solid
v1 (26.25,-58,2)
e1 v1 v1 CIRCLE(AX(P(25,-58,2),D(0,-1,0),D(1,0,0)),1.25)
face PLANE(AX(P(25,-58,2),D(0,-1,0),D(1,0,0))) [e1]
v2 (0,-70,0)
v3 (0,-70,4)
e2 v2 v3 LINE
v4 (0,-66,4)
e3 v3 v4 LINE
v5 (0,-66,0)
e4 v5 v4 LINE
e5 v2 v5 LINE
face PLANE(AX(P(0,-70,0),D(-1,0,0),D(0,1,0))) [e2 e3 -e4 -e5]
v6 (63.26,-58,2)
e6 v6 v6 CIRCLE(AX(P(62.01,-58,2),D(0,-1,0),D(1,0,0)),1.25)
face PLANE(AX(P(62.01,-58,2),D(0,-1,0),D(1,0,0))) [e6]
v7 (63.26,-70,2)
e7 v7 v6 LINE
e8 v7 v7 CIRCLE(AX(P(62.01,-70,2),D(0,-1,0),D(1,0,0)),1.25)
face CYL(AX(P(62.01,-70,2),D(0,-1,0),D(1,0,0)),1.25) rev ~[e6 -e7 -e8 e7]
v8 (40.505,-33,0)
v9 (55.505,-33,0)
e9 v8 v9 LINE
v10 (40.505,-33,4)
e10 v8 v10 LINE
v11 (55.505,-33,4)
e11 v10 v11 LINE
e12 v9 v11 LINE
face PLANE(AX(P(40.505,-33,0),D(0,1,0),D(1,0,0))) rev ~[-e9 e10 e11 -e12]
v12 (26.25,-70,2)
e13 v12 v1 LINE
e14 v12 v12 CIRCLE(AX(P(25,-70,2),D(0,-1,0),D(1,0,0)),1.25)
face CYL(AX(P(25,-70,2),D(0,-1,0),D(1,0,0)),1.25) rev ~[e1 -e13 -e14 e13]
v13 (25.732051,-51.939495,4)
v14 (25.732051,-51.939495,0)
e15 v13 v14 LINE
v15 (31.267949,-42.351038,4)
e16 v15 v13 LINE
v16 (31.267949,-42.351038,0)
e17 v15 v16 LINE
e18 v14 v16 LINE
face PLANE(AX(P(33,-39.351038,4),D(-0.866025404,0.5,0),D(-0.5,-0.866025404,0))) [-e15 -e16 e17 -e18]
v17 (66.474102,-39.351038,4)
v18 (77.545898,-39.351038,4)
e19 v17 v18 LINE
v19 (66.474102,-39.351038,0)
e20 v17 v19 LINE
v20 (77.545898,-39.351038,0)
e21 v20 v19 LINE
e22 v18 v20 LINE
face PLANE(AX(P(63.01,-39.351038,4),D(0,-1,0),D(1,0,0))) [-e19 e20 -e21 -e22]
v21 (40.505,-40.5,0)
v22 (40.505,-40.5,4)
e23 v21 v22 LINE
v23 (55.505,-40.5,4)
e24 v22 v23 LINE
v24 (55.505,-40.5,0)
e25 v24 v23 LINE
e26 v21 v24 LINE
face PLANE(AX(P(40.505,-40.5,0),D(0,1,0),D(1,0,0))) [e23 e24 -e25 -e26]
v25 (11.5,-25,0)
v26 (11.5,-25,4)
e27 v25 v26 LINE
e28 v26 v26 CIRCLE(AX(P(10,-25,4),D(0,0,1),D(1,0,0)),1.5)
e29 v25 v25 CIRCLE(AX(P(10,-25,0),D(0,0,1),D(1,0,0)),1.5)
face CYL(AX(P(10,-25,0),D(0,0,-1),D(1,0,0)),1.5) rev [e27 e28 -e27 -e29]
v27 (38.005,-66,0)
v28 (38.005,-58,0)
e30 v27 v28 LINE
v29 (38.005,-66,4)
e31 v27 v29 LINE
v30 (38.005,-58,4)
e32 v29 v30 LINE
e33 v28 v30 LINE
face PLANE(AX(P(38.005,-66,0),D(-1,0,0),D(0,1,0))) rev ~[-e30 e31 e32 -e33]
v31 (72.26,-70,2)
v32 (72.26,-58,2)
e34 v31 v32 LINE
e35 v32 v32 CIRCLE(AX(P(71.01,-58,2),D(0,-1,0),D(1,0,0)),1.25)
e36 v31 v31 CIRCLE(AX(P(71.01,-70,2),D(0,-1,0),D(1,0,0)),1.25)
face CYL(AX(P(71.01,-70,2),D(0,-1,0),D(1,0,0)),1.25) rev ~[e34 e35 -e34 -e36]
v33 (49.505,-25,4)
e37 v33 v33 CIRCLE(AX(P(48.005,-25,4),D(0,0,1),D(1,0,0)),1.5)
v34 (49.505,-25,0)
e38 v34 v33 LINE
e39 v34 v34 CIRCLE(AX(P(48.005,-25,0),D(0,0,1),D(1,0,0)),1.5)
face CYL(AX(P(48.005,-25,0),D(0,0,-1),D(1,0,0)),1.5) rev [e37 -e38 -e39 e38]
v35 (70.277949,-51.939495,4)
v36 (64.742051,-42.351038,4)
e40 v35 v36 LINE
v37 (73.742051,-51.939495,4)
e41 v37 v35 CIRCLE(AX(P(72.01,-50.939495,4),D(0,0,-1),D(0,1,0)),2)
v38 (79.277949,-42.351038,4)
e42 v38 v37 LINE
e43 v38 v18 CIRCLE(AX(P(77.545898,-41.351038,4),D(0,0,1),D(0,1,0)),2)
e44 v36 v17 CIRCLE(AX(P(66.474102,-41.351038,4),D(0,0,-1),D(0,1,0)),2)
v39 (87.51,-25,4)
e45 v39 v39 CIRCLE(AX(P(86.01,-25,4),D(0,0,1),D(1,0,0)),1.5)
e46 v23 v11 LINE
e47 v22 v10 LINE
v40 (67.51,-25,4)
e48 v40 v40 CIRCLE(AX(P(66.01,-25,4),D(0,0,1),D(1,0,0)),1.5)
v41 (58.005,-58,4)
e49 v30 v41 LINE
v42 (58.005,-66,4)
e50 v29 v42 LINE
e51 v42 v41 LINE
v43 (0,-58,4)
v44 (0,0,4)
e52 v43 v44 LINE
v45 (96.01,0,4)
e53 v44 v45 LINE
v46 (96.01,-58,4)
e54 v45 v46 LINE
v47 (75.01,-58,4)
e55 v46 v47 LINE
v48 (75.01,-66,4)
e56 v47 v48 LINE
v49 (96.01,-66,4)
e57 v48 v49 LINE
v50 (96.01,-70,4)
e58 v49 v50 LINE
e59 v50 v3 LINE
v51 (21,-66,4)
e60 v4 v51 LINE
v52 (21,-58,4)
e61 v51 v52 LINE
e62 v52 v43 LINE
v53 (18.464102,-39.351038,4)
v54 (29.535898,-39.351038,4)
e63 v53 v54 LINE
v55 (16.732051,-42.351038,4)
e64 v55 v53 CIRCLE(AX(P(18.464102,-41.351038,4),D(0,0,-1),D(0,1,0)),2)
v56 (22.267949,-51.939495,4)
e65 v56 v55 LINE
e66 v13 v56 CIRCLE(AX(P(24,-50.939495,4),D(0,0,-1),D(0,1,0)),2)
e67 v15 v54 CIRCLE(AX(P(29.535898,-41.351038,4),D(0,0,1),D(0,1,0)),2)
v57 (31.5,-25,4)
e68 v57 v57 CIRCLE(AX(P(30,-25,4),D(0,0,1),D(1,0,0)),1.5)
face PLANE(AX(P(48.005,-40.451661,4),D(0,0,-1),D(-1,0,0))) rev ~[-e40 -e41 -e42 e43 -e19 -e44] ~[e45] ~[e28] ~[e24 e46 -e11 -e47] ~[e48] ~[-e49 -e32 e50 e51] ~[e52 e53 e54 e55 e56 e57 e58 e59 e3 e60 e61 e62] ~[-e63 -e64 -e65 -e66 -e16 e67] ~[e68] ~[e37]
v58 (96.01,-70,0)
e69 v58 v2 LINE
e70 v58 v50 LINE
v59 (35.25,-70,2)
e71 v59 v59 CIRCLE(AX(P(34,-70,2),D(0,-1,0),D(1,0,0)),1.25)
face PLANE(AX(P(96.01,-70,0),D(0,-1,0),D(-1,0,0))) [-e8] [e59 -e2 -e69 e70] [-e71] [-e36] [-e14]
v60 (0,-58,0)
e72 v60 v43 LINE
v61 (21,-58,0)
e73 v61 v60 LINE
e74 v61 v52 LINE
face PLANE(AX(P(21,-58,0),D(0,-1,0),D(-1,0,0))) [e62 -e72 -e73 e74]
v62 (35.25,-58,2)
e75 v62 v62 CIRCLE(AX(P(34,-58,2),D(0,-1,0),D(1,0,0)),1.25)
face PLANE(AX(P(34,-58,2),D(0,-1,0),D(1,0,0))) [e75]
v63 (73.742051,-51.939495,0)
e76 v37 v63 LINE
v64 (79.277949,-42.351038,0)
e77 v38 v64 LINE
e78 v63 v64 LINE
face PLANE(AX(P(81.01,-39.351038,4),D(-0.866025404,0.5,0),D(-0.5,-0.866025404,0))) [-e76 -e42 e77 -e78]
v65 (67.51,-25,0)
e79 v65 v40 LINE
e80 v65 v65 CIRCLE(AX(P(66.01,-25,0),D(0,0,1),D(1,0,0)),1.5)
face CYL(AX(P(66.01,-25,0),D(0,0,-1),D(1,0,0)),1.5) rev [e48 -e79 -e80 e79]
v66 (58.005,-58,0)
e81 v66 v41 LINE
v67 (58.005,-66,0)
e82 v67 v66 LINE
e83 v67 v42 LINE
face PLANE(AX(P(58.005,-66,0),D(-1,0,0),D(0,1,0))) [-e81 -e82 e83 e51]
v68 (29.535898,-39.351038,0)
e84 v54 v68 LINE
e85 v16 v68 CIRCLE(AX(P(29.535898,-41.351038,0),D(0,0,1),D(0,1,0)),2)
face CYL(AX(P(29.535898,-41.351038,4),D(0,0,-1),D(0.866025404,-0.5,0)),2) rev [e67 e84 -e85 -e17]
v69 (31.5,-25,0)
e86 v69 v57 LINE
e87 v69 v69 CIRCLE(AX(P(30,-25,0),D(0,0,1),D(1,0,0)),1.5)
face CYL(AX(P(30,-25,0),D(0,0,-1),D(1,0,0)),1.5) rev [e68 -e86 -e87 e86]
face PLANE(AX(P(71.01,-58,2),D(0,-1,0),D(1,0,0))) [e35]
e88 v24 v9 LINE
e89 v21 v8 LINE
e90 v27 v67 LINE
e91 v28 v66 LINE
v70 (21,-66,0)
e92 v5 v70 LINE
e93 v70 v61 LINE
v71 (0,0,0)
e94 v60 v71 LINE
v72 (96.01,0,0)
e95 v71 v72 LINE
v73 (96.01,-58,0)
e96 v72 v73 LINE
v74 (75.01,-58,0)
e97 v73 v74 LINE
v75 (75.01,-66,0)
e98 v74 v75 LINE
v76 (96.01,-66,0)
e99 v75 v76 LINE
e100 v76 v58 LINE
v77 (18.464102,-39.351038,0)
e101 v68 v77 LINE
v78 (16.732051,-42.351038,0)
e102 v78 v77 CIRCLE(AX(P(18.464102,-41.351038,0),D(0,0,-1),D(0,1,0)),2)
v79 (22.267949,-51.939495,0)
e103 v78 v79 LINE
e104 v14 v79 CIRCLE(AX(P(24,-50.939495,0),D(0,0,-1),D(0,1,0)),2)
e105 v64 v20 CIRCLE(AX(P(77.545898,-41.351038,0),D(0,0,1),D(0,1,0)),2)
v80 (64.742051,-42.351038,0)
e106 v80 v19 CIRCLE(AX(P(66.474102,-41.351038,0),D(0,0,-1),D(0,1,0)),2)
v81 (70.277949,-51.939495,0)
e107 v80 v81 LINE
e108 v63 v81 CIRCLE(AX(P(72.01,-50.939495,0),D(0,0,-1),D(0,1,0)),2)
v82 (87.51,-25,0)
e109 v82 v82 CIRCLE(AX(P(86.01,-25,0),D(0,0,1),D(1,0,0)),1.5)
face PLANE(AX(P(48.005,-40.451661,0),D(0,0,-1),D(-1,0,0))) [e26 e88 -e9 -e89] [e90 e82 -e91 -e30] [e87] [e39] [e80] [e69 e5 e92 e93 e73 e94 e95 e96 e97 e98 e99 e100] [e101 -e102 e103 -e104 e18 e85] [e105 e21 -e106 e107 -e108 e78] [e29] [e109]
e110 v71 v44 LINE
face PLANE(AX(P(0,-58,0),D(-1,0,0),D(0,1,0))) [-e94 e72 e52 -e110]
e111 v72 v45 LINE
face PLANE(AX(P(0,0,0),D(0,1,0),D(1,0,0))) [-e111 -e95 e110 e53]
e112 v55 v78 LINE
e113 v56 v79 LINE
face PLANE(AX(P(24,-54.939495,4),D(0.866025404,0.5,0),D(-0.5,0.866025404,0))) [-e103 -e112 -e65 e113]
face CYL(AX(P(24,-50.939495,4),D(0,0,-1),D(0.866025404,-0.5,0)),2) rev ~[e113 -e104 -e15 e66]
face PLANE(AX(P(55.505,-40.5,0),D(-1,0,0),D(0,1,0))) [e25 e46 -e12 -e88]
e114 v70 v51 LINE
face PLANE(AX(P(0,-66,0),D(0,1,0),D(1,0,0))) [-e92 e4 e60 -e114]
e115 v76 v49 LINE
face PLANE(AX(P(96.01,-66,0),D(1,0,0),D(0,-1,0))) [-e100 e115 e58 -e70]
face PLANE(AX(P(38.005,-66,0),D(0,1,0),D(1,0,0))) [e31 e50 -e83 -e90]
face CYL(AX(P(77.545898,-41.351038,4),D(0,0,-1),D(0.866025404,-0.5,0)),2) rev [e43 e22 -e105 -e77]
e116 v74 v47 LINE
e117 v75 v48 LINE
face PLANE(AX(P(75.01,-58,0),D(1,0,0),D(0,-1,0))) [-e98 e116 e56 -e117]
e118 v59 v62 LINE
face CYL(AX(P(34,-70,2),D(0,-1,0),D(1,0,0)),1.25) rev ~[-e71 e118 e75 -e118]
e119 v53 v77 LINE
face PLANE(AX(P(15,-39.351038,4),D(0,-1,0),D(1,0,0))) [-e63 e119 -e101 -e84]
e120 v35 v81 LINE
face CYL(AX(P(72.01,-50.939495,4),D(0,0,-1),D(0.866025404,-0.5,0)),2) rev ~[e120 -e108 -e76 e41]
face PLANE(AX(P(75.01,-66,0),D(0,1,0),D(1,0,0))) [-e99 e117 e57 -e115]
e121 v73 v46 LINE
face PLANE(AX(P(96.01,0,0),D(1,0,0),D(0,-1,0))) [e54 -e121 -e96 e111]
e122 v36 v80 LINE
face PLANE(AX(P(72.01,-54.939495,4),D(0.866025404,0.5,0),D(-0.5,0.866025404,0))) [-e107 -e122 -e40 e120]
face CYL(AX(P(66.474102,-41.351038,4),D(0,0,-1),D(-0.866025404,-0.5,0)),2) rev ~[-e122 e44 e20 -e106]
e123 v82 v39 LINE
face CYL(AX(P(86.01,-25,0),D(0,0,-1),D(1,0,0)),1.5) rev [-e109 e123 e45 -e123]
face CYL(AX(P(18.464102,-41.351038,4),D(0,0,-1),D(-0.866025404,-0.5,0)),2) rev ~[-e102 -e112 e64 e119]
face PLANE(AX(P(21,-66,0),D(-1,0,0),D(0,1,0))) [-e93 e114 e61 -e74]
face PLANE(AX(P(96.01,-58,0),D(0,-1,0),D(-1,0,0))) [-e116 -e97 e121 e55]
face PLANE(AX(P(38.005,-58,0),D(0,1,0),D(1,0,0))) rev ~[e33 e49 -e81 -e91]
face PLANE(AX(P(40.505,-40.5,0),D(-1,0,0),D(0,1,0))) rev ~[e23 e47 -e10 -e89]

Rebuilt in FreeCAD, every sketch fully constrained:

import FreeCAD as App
import Part
import Sketcher
Q = App.Units.Quantity


def edges_at(feature, points):
    """Names of the edges that pass closest to the given points."""
    edges = feature.Shape.Edges
    near = lambda p: min(range(len(edges)), key=lambda i: edges[i].distToShape(Part.Vertex(*p))[0])
    return sorted({f"Edge{near(p) + 1}" for p in points})

doc = App.newDocument("Part")
body = doc.addObject("PartDesign::Body", "Body")

# Sketch on XY plane
sketch1 = doc.addObject("Sketcher::SketchObject", "Sketch")
body.addObject(sketch1)
sketch1.AttachmentSupport = (doc.XY_Plane, [""])
sketch1.MapMode = "FlatFace"
sketch1.addGeometry([
    Part.LineSegment(App.Vector(96.01, 0, 0), App.Vector(0, 0, 0)),  # 0
    Part.LineSegment(App.Vector(0, 0, 0), App.Vector(0, -58, 0)),  # 1
    Part.LineSegment(App.Vector(0, -58, 0), App.Vector(21, -58, 0)),  # 2
    Part.LineSegment(App.Vector(21, -58, 0), App.Vector(21, -66, 0)),  # 3
    Part.LineSegment(App.Vector(21, -66, 0), App.Vector(0, -66, 0)),  # 4
    Part.LineSegment(App.Vector(0, -66, 0), App.Vector(0, -70, 0)),  # 5
    Part.LineSegment(App.Vector(0, -70, 0), App.Vector(96.01, -70, 0)),  # 6
    Part.LineSegment(App.Vector(96.01, -70, 0), App.Vector(96.01, -66, 0)),  # 7
    Part.LineSegment(App.Vector(96.01, -66, 0), App.Vector(75.01, -66, 0)),  # 8
    Part.LineSegment(App.Vector(75.01, -66, 0), App.Vector(75.01, -58, 0)),  # 9
    Part.LineSegment(App.Vector(75.01, -58, 0), App.Vector(96.01, -58, 0)),  # 10
    Part.LineSegment(App.Vector(96.01, -58, 0), App.Vector(96.01, 0, 0)),  # 11
    Part.LineSegment(App.Vector(38.005, -66, 0), App.Vector(38.005, -58, 0)),  # 12
    Part.LineSegment(App.Vector(38.005, -58, 0), App.Vector(58.005, -58, 0)),  # 13
    Part.LineSegment(App.Vector(58.005, -58, 0), App.Vector(58.005, -66, 0)),  # 14
    Part.LineSegment(App.Vector(58.005, -66, 0), App.Vector(38.005, -66, 0)),  # 15
    Part.Circle(App.Vector(86.01, -25, 0), App.Vector(0, 0, 1), 1.5),  # 16
    Part.Circle(App.Vector(66.01, -25, 0), App.Vector(0, 0, 1), 1.5),  # 17
    Part.LineSegment(App.Vector(40.505, -40.5, 0), App.Vector(40.505, -33, 0)),  # 18
    Part.LineSegment(App.Vector(40.505, -33, 0), App.Vector(55.505, -33, 0)),  # 19
    Part.LineSegment(App.Vector(55.505, -33, 0), App.Vector(55.505, -40.5, 0)),  # 20
    Part.LineSegment(App.Vector(55.505, -40.5, 0), App.Vector(40.505, -40.5, 0)),  # 21
    Part.Circle(App.Vector(48.005, -25, 0), App.Vector(0, 0, 1), 1.5),  # 22
    Part.Circle(App.Vector(30, -25, 0), App.Vector(0, 0, 1), 1.5),  # 23
    Part.Circle(App.Vector(10, -25, 0), App.Vector(0, 0, 1), 1.5),  # 24
], False)
sketch1.addConstraint([
    Sketcher.Constraint("Coincident", 0, 2, 1, 1),
    Sketcher.Constraint("Coincident", 1, 2, 2, 1),
    Sketcher.Constraint("Coincident", 2, 2, 3, 1),
    Sketcher.Constraint("Coincident", 3, 2, 4, 1),
    Sketcher.Constraint("Coincident", 4, 2, 5, 1),
    Sketcher.Constraint("Coincident", 5, 2, 6, 1),
    Sketcher.Constraint("Coincident", 6, 2, 7, 1),
    Sketcher.Constraint("Coincident", 7, 2, 8, 1),
    Sketcher.Constraint("Coincident", 8, 2, 9, 1),
    Sketcher.Constraint("Coincident", 9, 2, 10, 1),
    Sketcher.Constraint("Coincident", 10, 2, 11, 1),
    Sketcher.Constraint("Coincident", 11, 2, 0, 1),
    Sketcher.Constraint("Coincident", 12, 2, 13, 1),
    Sketcher.Constraint("Coincident", 13, 2, 14, 1),
    Sketcher.Constraint("Coincident", 14, 2, 15, 1),
    Sketcher.Constraint("Coincident", 15, 2, 12, 1),
    Sketcher.Constraint("Coincident", 18, 2, 19, 1),
    Sketcher.Constraint("Coincident", 19, 2, 20, 1),
    Sketcher.Constraint("Coincident", 20, 2, 21, 1),
    Sketcher.Constraint("Coincident", 21, 2, 18, 1),
    Sketcher.Constraint("Horizontal", 0),
    Sketcher.Constraint("Vertical", 1),
    Sketcher.Constraint("Horizontal", 2),
    Sketcher.Constraint("Vertical", 3),
    Sketcher.Constraint("Horizontal", 4),
    Sketcher.Constraint("Vertical", 5),
    Sketcher.Constraint("Horizontal", 6),
    Sketcher.Constraint("Vertical", 7),
    Sketcher.Constraint("Horizontal", 8),
    Sketcher.Constraint("Vertical", 9),
    Sketcher.Constraint("Horizontal", 10),
    Sketcher.Constraint("Vertical", 11),
    Sketcher.Constraint("Vertical", 12),
    Sketcher.Constraint("Horizontal", 13),
    Sketcher.Constraint("Vertical", 14),
    Sketcher.Constraint("Horizontal", 15),
    Sketcher.Constraint("Vertical", 18),
    Sketcher.Constraint("Horizontal", 19),
    Sketcher.Constraint("Vertical", 20),
    Sketcher.Constraint("Horizontal", 21),
    Sketcher.Constraint("Coincident", 0, 2, -1, 1),
    Sketcher.Constraint("Equal", 16, 17),
    Sketcher.Constraint("Equal", 17, 22),
    Sketcher.Constraint("Equal", 22, 23),
    Sketcher.Constraint("Equal", 23, 24),
    Sketcher.Constraint("PointOnObject", 4, 2, -2),
    Sketcher.Constraint("Horizontal", 16, 3, 17, 3),
    Sketcher.Constraint("Horizontal", 17, 3, 22, 3),
    Sketcher.Constraint("Horizontal", 22, 3, 23, 3),
    Sketcher.Constraint("Horizontal", 23, 3, 24, 3),
    Sketcher.Constraint("Horizontal", 4, 2, 7, 2),
    Sketcher.Constraint("Horizontal", 2, 2, 9, 2),
    Sketcher.Constraint("Horizontal", 10, 2, 12, 2),
    Sketcher.Constraint("Horizontal", 8, 2, 14, 2),
    Sketcher.Constraint("Vertical", 7, 2, 10, 2),
    Sketcher.Constraint("Equal", 4, 8),
    Sketcher.Constraint("Diameter", 16, 3.0),
    Sketcher.Constraint("DistanceX", 2, 1, 2, 2, 21.0),
    Sketcher.Constraint("DistanceX", 13, 1, 13, 2, 20.0),
    Sketcher.Constraint("DistanceX", 19, 1, 19, 2, 15.0),
    Sketcher.Constraint("DistanceY", 1, 2, 1, 1, 58.0),
    Sketcher.Constraint("DistanceY", 3, 2, 3, 1, 8.0),
    Sketcher.Constraint("DistanceY", 5, 2, 5, 1, 4.0),
    Sketcher.Constraint("DistanceY", 18, 1, 18, 2, 7.5),
    Sketcher.Constraint("DistanceY", 16, 3, -1, 1, 25.0),
    Sketcher.Constraint("DistanceX", -1, 1, 23, 3, 30.0),
    Sketcher.Constraint("DistanceX", -1, 1, 24, 3, 10.0),
    Sketcher.Constraint("DistanceY", 18, 2, -1, 1, 33.0),
    Sketcher.Constraint("DistanceX", 17, 3, 16, 3, 20.0),
    Sketcher.Constraint("DistanceX", 16, 3, 6, 2, 10.0),
    Sketcher.Constraint("DistanceX", 12, 2, 22, 3, 10.0),
    Sketcher.Constraint("DistanceX", 0, 2, 0, 1, 96.01),
    Sketcher.Constraint("DistanceX", 18, 2, 22, 3, 7.5),
    Sketcher.Constraint("DistanceX", -1, 1, 22, 3, 48.005),
])
pad1 = doc.addObject("PartDesign::Pad", "Pad")
body.addObject(pad1)
pad1.Profile = sketch1
pad1.Length = 4

# Sketch on XY plane
sketch2 = doc.addObject("Sketcher::SketchObject", "Sketch001")
body.addObject(sketch2)
sketch2.AttachmentSupport = (doc.XY_Plane, [""])
sketch2.MapMode = "FlatFace"
sketch2.AttachmentOffset = App.Placement(App.Vector(0, 0, 4), App.Rotation())
sketch2.addGeometry([
    Part.LineSegment(App.Vector(81.01, -39.351038, 0), App.Vector(63.01, -39.351038, 0)),  # 0
    Part.LineSegment(App.Vector(63.01, -39.351038, 0), App.Vector(72.01, -54.939495, 0)),  # 1
    Part.LineSegment(App.Vector(72.01, -54.939495, 0), App.Vector(81.01, -39.351038, 0)),  # 2
    Part.LineSegment(App.Vector(33, -39.351038, 0), App.Vector(15, -39.351038, 0)),  # 3
    Part.LineSegment(App.Vector(15, -39.351038, 0), App.Vector(24, -54.939495, 0)),  # 4
    Part.LineSegment(App.Vector(24, -54.939495, 0), App.Vector(33, -39.351038, 0)),  # 5
], False)
sketch2.addConstraint([
    Sketcher.Constraint("Coincident", 0, 2, 1, 1),
    Sketcher.Constraint("Coincident", 1, 2, 2, 1),
    Sketcher.Constraint("Coincident", 2, 2, 0, 1),
    Sketcher.Constraint("Coincident", 3, 2, 4, 1),
    Sketcher.Constraint("Coincident", 4, 2, 5, 1),
    Sketcher.Constraint("Coincident", 5, 2, 3, 1),
    Sketcher.Constraint("Horizontal", 0),
    Sketcher.Constraint("Horizontal", 3),
    Sketcher.Constraint("Parallel", 1, 4),
    Sketcher.Constraint("Parallel", 2, 5),
    Sketcher.Constraint("Horizontal", 2, 2, 3, 2),
    Sketcher.Constraint("Horizontal", 1, 2, 4, 2),
    Sketcher.Constraint("Equal", 1, 2),
    Sketcher.Constraint("DistanceX", 0, 2, 0, 1, 18.0),
    Sketcher.Constraint("Angle", 1, Q("-60 deg")),
    Sketcher.Constraint("DistanceX", -1, 1, 3, 2, 15.0),
    Sketcher.Constraint("DistanceX", -1, 1, 0, 2, 63.01),
    Sketcher.Constraint("DistanceY", 0, 2, -1, 1, 39.351038),
])
pocket1 = doc.addObject("PartDesign::Pocket", "Pocket")
body.addObject(pocket1)
pocket1.Profile = sketch2
pocket1.Length = 10
doc.recompute()

fillet = doc.addObject("PartDesign::Fillet", "Fillet")
body.addObject(fillet)
fillet.Base = (pocket1, edges_at(pocket1, [
    (72.01, -54.939, 2),
    (63.01, -39.351, 2),
    (81.01, -39.351, 2),
    (24, -54.939, 2),
    (15, -39.351, 2),
    (33, -39.351, 2),
]))
fillet.Radius = 2

# Sketch on XZ plane
sketch3 = doc.addObject("Sketcher::SketchObject", "Sketch002")
body.addObject(sketch3)
sketch3.AttachmentSupport = (doc.XZ_Plane, [""])
sketch3.MapMode = "FlatFace"
sketch3.AttachmentOffset = App.Placement(App.Vector(0, 0, 70), App.Rotation())
sketch3.addGeometry([
    Part.Circle(App.Vector(25, 2, 0), App.Vector(0, 0, 1), 1.25),
    Part.Circle(App.Vector(34, 2, 0), App.Vector(0, 0, 1), 1.25),
    Part.Circle(App.Vector(62.01, 2, 0), App.Vector(0, 0, 1), 1.25),
    Part.Circle(App.Vector(71.01, 2, 0), App.Vector(0, 0, 1), 1.25),
], False)
sketch3.addConstraint([
    Sketcher.Constraint("Equal", 0, 1),
    Sketcher.Constraint("Equal", 1, 2),
    Sketcher.Constraint("Equal", 2, 3),
    Sketcher.Constraint("Horizontal", 0, 3, 1, 3),
    Sketcher.Constraint("Horizontal", 1, 3, 2, 3),
    Sketcher.Constraint("Horizontal", 2, 3, 3, 3),
    Sketcher.Constraint("Diameter", 0, 2.5),
    Sketcher.Constraint("DistanceX", -1, 1, 0, 3, 25.0),
    Sketcher.Constraint("DistanceY", -1, 1, 0, 3, 2.0),
    Sketcher.Constraint("DistanceX", -1, 1, 1, 3, 34.0),
    Sketcher.Constraint("DistanceX", 2, 3, 3, 3, 9.0),
    Sketcher.Constraint("DistanceX", -1, 1, 2, 3, 62.01),
])
pocket2 = doc.addObject("PartDesign::Pocket", "Pocket001")
body.addObject(pocket2)
pocket2.Profile = sketch3
pocket2.Length = 12

doc.recompute()
